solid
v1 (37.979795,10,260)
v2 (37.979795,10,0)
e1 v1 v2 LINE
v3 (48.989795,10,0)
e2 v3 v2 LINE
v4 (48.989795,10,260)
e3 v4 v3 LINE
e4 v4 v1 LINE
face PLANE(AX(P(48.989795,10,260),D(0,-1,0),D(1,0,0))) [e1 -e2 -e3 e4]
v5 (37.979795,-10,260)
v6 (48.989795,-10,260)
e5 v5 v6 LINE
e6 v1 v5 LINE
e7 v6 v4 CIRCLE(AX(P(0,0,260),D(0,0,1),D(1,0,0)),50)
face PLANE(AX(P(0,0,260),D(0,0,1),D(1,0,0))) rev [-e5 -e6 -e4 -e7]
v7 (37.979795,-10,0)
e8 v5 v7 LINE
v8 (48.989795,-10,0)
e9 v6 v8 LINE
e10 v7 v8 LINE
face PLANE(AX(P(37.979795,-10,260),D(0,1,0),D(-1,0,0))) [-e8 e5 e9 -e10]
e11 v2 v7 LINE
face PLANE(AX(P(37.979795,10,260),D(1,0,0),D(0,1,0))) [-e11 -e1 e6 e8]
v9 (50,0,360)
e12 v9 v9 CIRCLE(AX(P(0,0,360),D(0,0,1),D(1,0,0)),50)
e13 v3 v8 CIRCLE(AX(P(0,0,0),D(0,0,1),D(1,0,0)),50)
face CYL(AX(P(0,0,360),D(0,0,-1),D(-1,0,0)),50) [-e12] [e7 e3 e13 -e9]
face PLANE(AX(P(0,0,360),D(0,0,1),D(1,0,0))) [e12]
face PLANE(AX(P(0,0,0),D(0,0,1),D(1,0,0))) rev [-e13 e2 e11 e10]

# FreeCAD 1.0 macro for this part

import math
import FreeCAD as App
import Part
import Sketcher

V = App.Vector
Q = App.Units.Quantity

doc = App.newDocument("Part")
body = doc.addObject("PartDesign::Body", "Body")

sketch1 = body.newObject("Sketcher::SketchObject", "Sketch")
sketch1.AttachmentSupport = (doc.getObject("XY_Plane"), [""])
sketch1.MapMode = "FlatFace"
sketch1.addGeometry(Part.Circle(V(0, 0, 0), V(0, 0, 1), 50), False)
sketch1.addConstraint([
    Sketcher.Constraint("Coincident", 0, 3, -1, 1),
    Sketcher.Constraint("Diameter", 0, Q("100 mm")),
])
pad1 = body.newObject("PartDesign::Pad", "Pad")
pad1.Profile = sketch1
pad1.Length = 360

sketch2 = body.newObject("Sketcher::SketchObject", "Sketch001")
sketch2.AttachmentSupport = (doc.getObject("XY_Plane"), [""])
sketch2.MapMode = "FlatFace"
sketch2.addGeometry([
    Part.LineSegment(V(49, 10, 0), V(38, 10, 0)),
    Part.LineSegment(V(38, 10, 0), V(38, -10, 0)),
    Part.LineSegment(V(38, -10, 0), V(49, -10, 0)),
    Part.ArcOfCircle(Part.Circle(V(0, 0, 0), V(0, 0, 1), 50), math.radians(-12), math.radians(12)),
], False)
sketch2.addConstraint([
    Sketcher.Constraint("Coincident", 0, 2, 1, 1),
    Sketcher.Constraint("Coincident", 1, 2, 2, 1),
    Sketcher.Constraint("Coincident", 2, 2, 3, 1),
    Sketcher.Constraint("Coincident", 3, 2, 0, 1),
    Sketcher.Constraint("Horizontal", 0),
    Sketcher.Constraint("Vertical", 1),
    Sketcher.Constraint("Horizontal", 2),
    Sketcher.Constraint("Coincident", 3, 3, -1, 1),
    Sketcher.Constraint("Vertical", 2, 2, 3, 2),
    Sketcher.Constraint("Radius", 3, Q("50 mm")),
    Sketcher.Constraint("DistanceY", 1, 2, 1, 1, Q("20 mm")),
    Sketcher.Constraint("DistanceX", 0, 2, 0, 1, Q("11.01 mm")),
])
pocket1 = body.newObject("PartDesign::Pocket", "Pocket")
pocket1.Profile = sketch2
pocket1.Length = 260
pocket1.Reversed = True

doc.recompute()
